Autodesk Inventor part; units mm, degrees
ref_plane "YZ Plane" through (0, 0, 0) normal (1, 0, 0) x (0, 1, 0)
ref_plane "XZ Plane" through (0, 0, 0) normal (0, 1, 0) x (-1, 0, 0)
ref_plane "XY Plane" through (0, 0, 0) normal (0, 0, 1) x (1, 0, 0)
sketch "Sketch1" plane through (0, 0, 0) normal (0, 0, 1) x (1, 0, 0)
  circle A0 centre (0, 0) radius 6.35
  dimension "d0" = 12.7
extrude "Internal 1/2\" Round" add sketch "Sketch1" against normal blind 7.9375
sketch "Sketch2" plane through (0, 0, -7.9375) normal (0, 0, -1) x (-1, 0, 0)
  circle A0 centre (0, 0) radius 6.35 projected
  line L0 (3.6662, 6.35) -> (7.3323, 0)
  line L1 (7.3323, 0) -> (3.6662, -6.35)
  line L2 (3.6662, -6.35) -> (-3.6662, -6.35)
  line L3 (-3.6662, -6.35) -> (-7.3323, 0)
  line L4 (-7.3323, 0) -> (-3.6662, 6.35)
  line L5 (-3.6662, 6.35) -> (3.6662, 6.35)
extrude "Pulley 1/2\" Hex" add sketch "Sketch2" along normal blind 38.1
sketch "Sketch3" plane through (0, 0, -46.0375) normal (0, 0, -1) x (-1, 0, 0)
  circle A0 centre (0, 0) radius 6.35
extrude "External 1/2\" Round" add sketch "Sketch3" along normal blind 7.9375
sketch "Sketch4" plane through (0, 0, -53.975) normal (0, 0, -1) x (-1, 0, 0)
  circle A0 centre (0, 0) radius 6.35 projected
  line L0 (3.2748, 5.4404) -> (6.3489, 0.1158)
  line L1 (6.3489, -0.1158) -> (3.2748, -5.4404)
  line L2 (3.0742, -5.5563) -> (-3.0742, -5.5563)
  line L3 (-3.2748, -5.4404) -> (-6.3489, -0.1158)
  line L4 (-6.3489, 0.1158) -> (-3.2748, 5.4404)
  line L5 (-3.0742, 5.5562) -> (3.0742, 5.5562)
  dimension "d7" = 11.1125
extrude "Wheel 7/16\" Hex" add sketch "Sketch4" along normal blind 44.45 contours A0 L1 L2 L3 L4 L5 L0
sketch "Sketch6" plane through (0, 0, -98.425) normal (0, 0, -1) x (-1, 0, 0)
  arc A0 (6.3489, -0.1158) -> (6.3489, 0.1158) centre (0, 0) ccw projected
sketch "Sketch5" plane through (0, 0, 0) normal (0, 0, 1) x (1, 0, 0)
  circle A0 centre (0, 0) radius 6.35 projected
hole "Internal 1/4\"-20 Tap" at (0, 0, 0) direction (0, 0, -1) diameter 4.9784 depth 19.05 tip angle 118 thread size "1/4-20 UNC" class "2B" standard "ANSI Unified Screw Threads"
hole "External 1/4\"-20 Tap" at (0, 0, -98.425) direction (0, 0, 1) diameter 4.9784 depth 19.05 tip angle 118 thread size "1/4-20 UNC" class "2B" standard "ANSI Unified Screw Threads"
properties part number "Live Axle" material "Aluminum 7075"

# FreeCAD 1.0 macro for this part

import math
import FreeCAD as App
import Part
import Sketcher

V = App.Vector
Q = App.Units.Quantity


def add_polygon(sketch, points):
    """Adds a closed chain of lines whose ends are joined by coincident constraints."""
    first, n = sketch.GeometryCount, len(points)
    for a, b in zip(points, points[1:] + points[:1]):
        sketch.addGeometry(Part.LineSegment(App.Vector(*a, 0), App.Vector(*b, 0)), False)
    for i in range(n):
        sketch.addConstraint(Sketcher.Constraint("Coincident", first + i, 2, first + (i + 1) % n, 1))

doc = App.newDocument("Part")
body = doc.addObject("PartDesign::Body", "Body")

# Sketch on XY plane
sketch1 = body.newObject("Sketcher::SketchObject", "Sketch")
sketch1.AttachmentSupport = (doc.getObject("XY_Plane"), [""])
sketch1.MapMode = "FlatFace"
sketch1.addGeometry(Part.Circle(V(0, 0, 0), V(0, 0, 1), 6), False)
sketch1.addConstraint([
    Sketcher.Constraint("Coincident", 0, 3, -1, 1),
    Sketcher.Constraint("Diameter", 0, Q("0.5 in")),
])
pad1 = body.newObject("PartDesign::Pad", "Pad")
pad1.Profile = sketch1
pad1.Length = Q("0.3125 in")
pad1.Reversed = True

# Sketch on XY plane
sketch2 = body.newObject("Sketcher::SketchObject", "Sketch001")
sketch2.AttachmentSupport = (doc.getObject("XY_Plane"), [""])
sketch2.MapMode = "FlatFace"
sketch2.AttachmentOffset = App.Placement(V(0, 0, -0.3125 * 25.4), App.Rotation())
add_polygon(sketch2, [(-7, 0), (-4, 6), (4, 6), (7, 0), (4, -6), (-4, -6)])  # lines 0-5
sketch2.addConstraint([
    Sketcher.Constraint("Horizontal", 1),
    Sketcher.Constraint("Horizontal", 4),
    Sketcher.Constraint("Symmetric", 0, 2, 3, 2, -1, 1),
    Sketcher.Constraint("Symmetric", 2, 2, 5, 2, -1, 1),
    Sketcher.Constraint("PointOnObject", 2, 2, -1),
    Sketcher.Constraint("Parallel", 2, 5),
    Sketcher.Constraint("Vertical", 1, 2, 3, 2),
    Sketcher.Constraint("Angle", 0, Q("60.0005 deg")),
    Sketcher.Constraint("DistanceY", 3, 2, 1, 2, Q("0.5 in")),
    Sketcher.Constraint("DistanceX", 0, 2, 2, 2, Q("0.433 in")),
])
pad2 = body.newObject("PartDesign::Pad", "Pad001")
pad2.Profile = sketch2
pad2.Length = Q("1.5 in")
pad2.Reversed = True

# Sketch on XY plane
sketch3 = body.newObject("Sketcher::SketchObject", "Sketch002")
sketch3.AttachmentSupport = (doc.getObject("XY_Plane"), [""])
sketch3.MapMode = "FlatFace"
sketch3.AttachmentOffset = App.Placement(V(0, 0, -1.8125 * 25.4), App.Rotation())
sketch3.addGeometry(Part.Circle(V(0, 0, 0), V(0, 0, 1), 6), False)
sketch3.addConstraint([
    Sketcher.Constraint("Coincident", 0, 3, -1, 1),
    Sketcher.Constraint("Diameter", 0, Q("0.5 in")),
])
pad3 = body.newObject("PartDesign::Pad", "Pad002")
pad3.Profile = sketch3
pad3.Length = Q("0.3125 in")
pad3.Reversed = True

# Sketch on XY plane
sketch4 = body.newObject("Sketcher::SketchObject", "Sketch003")
sketch4.AttachmentSupport = (doc.getObject("XY_Plane"), [""])
sketch4.MapMode = "FlatFace"
sketch4.AttachmentOffset = App.Placement(V(0, 0, -2.125 * 25.4), App.Rotation())
sketch4.addGeometry([
    Part.ArcOfCircle(Part.Circle(V(0, 0, 0), V(0, 0, 1), 6.35), math.radians(178.96), math.radians(181.04)),  # 0
    Part.LineSegment(V(-6.35, 0.12, 0), V(-3.27, 5.44, 0)),  # 1
    Part.ArcOfCircle(Part.Circle(V(0, 0, 0), V(0, 0, 1), 6.35), math.radians(118.96), math.radians(121.05)),  # 2
    Part.LineSegment(V(-3.07, 5.56, 0), V(3.07, 5.56, 0)),  # 3
    Part.ArcOfCircle(Part.Circle(V(0, 0, 0), V(0, 0, 1), 6.35), math.radians(58.95), math.radians(61.04)),  # 4
    Part.LineSegment(V(3.27, 5.44, 0), V(6.35, 0.12, 0)),  # 5
    Part.ArcOfCircle(Part.Circle(V(0, 0, 0), V(0, 0, 1), 6.35), math.radians(-1.04), math.radians(1.04)),  # 6
    Part.LineSegment(V(6.35, -0.12, 0), V(3.27, -5.44, 0)),  # 7
    Part.ArcOfCircle(Part.Circle(V(0, 0, 0), V(0, 0, 1), 6.35), math.radians(-61.05), math.radians(-58.95)),  # 8
    Part.LineSegment(V(3.07, -5.56, 0), V(-3.07, -5.56, 0)),  # 9
    Part.ArcOfCircle(Part.Circle(V(0, 0, 0), V(0, 0, 1), 6.35), math.radians(-121.05), math.radians(-118.95)),  # 10
    Part.LineSegment(V(-3.27, -5.44, 0), V(-6.35, -0.12, 0)),  # 11
], False)
sketch4.addConstraint([
    Sketcher.Constraint("Coincident", 0, 1, 1, 1),
    Sketcher.Constraint("Coincident", 1, 2, 2, 2),
    Sketcher.Constraint("Coincident", 2, 1, 3, 1),
    Sketcher.Constraint("Coincident", 3, 2, 4, 2),
    Sketcher.Constraint("Coincident", 4, 1, 5, 1),
    Sketcher.Constraint("Coincident", 5, 2, 6, 2),
    Sketcher.Constraint("Coincident", 6, 1, 7, 1),
    Sketcher.Constraint("Coincident", 7, 2, 8, 2),
    Sketcher.Constraint("Coincident", 8, 1, 9, 1),
    Sketcher.Constraint("Coincident", 9, 2, 10, 2),
    Sketcher.Constraint("Coincident", 10, 1, 11, 1),
    Sketcher.Constraint("Coincident", 11, 2, 0, 2),
    Sketcher.Constraint("Horizontal", 3),
    Sketcher.Constraint("Horizontal", 9),
    Sketcher.Constraint("Coincident", 0, 3, -1, 1),
    Sketcher.Constraint("Coincident", 2, 3, -1, 1),
    Sketcher.Constraint("Coincident", 4, 3, -1, 1),
    Sketcher.Constraint("Coincident", 6, 3, -1, 1),
    Sketcher.Constraint("Coincident", 8, 3, -1, 1),
    Sketcher.Constraint("Coincident", 10, 3, -1, 1),
    Sketcher.Constraint("Equal", 0, 2),
    Sketcher.Constraint("Equal", 2, 4),
    Sketcher.Constraint("Equal", 4, 6),
    Sketcher.Constraint("Equal", 6, 8),
    Sketcher.Constraint("Equal", 8, 10),
    Sketcher.Constraint("Parallel", 1, 7),
    Sketcher.Constraint("Parallel", 5, 11),
    Sketcher.Constraint("Horizontal", 1, 2, 4, 1),
    Sketcher.Constraint("Horizontal", 0, 1, 5, 2),
    Sketcher.Constraint("Horizontal", 7, 2, 10, 1),
    Sketcher.Constraint("Vertical", 5, 2, 6, 1),
    Sketcher.Constraint("Vertical", 3, 2, 8, 1),
    Sketcher.Constraint("Radius", 0, Q("0.25 in")),
    Sketcher.Constraint("Angle", 1, Q("60.0005 deg")),
    Sketcher.Constraint("DistanceY", -1, 1, 2, 1, Q("0.218748 in")),
    Sketcher.Constraint("DistanceY", 6, 1, 4, 1, Q("0.218748 in")),
])
pad4 = body.newObject("PartDesign::Pad", "Pad003")
pad4.Profile = sketch4
pad4.Length = Q("1.75 in")
pad4.Reversed = True

# Sketch on XY plane
sketch5 = body.newObject("Sketcher::SketchObject", "Sketch004")
sketch5.AttachmentSupport = (doc.getObject("XY_Plane"), [""])
sketch5.MapMode = "FlatFace"
sketch5.addGeometry(Part.Circle(V(0, 0, 0), V(0, 0, 1), 2.5), False)
sketch5.addConstraint([
    Sketcher.Constraint("Coincident", 0, 3, -1, 1),
    Sketcher.Constraint("Diameter", 0, Q("0.196 in")),
])
doc.recompute()
hole = body.newObject("PartDesign::Hole", "Hole")
hole.Profile = sketch5
hole.ThreadType = "None"
hole.Diameter = Q("0.196 in")
hole.DepthType = "Dimension"
hole.Depth = Q("0.75 in")
hole.DrillPoint = "Angled"
hole.DrillPointAngle = 118

# Sketch on XY plane
sketch6 = body.newObject("Sketcher::SketchObject", "Sketch005")
sketch6.AttachmentSupport = (doc.getObject("XY_Plane"), [""])
sketch6.MapMode = "FlatFace"
sketch6.AttachmentOffset = App.Placement(V(0, 0, -3.875 * 25.4), App.Rotation())
sketch6.addGeometry(Part.Circle(V(0, 0, 0), V(0, 0, 1), 2.5), False)
sketch6.addConstraint([
    Sketcher.Constraint("Coincident", 0, 3, -1, 1),
    Sketcher.Constraint("Diameter", 0, Q("0.196 in")),
])
doc.recompute()
hole2 = body.newObject("PartDesign::Hole", "Hole001")
hole2.Profile = sketch6
hole2.ThreadType = "None"
hole2.Diameter = Q("0.196 in")
hole2.DepthType = "Dimension"
hole2.Depth = Q("0.75 in")
hole2.DrillPoint = "Angled"
hole2.DrillPointAngle = 118
hole2.Reversed = True

doc.recompute()
